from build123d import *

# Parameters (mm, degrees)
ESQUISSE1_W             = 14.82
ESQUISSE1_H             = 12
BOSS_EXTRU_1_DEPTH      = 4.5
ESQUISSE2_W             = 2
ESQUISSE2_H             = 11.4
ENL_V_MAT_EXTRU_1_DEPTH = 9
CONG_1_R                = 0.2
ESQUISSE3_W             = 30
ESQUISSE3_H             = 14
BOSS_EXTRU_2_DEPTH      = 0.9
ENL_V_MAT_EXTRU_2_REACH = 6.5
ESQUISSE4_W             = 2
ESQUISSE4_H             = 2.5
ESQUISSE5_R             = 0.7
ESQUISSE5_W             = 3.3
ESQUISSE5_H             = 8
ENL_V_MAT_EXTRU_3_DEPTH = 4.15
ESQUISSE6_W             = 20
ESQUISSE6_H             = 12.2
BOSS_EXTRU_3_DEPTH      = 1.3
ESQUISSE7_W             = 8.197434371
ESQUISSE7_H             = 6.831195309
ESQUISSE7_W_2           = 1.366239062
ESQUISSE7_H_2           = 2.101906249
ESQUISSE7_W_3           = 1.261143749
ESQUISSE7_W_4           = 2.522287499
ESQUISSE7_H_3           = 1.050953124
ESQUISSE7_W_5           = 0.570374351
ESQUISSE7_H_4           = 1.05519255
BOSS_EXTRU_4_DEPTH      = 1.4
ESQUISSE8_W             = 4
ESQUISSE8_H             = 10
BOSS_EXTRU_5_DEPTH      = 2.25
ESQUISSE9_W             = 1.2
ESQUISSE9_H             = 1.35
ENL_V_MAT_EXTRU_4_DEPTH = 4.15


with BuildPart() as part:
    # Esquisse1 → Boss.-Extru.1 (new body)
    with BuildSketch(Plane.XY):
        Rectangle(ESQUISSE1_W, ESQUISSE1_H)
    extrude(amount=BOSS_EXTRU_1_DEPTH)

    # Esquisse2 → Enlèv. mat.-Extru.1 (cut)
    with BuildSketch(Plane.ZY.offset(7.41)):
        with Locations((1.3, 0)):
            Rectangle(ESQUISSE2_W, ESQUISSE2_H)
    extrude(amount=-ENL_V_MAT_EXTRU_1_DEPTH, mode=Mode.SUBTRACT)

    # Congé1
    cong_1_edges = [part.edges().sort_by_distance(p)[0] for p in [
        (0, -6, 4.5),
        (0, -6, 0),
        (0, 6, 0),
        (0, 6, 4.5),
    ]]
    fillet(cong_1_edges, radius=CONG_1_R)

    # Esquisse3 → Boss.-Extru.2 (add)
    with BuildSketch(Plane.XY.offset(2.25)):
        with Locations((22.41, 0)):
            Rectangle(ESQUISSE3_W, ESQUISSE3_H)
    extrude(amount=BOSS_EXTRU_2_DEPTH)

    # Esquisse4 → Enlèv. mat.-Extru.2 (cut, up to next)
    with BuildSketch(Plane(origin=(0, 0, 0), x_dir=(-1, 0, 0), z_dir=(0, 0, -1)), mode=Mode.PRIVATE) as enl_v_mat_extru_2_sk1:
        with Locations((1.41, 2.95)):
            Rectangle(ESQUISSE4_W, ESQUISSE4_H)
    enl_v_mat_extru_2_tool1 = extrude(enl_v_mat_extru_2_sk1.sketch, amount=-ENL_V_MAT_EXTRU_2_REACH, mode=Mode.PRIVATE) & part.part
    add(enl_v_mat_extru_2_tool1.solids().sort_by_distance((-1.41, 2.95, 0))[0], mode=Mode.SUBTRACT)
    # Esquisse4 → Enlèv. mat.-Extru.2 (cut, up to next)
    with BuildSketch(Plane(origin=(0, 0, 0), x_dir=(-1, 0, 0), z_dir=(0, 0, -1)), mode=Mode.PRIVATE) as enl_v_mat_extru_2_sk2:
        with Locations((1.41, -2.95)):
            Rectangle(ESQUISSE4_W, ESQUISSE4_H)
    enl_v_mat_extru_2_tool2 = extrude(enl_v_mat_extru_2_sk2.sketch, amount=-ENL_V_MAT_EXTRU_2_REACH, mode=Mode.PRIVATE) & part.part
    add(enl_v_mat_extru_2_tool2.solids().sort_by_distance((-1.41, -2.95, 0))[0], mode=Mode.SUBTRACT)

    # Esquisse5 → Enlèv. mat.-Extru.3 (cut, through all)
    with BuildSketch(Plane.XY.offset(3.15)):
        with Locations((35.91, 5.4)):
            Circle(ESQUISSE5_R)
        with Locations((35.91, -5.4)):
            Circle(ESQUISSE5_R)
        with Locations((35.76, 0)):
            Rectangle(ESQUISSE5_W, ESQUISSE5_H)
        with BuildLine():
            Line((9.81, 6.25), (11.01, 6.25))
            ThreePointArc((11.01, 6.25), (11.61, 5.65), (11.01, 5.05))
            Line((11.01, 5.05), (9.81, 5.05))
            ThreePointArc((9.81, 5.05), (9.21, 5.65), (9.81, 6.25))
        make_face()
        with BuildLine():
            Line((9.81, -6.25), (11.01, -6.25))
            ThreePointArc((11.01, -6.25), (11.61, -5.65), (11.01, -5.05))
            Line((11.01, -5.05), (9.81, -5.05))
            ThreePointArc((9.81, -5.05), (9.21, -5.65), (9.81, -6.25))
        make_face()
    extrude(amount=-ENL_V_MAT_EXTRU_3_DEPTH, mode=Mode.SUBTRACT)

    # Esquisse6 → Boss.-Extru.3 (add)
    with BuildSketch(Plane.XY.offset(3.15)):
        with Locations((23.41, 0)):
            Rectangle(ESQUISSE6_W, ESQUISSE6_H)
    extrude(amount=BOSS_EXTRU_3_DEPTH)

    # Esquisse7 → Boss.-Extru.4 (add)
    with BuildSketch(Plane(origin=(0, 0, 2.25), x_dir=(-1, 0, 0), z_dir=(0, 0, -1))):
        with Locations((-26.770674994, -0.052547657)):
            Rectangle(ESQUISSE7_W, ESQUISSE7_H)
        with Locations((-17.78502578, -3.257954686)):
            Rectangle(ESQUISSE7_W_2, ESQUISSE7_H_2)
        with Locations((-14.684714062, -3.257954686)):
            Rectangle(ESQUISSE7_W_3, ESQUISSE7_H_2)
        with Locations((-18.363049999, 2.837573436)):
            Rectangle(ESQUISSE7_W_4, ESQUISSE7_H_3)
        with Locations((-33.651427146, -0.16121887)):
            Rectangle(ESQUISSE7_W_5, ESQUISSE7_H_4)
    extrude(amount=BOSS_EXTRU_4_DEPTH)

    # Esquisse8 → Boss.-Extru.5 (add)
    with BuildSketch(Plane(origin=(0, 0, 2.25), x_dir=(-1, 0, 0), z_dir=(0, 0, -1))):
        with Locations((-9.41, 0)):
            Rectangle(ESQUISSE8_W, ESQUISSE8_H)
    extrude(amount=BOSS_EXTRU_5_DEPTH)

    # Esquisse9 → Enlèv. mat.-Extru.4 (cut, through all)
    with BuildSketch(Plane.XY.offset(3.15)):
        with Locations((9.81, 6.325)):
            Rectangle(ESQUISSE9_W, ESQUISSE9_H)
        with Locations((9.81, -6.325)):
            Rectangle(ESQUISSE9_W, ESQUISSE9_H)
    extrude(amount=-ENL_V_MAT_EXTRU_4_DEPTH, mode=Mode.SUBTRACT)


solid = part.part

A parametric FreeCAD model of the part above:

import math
import FreeCAD as App
import Part
import Sketcher
Q = App.Units.Quantity


def edges_at(feature, points):
    """Names of the edges that pass closest to the given points."""
    edges = feature.Shape.Edges
    near = lambda p: min(range(len(edges)), key=lambda i: edges[i].distToShape(Part.Vertex(*p))[0])
    return sorted({f"Edge{near(p) + 1}" for p in points})


def add_polygon(sketch, points):
    """Adds a closed chain of lines whose ends are joined by coincident constraints."""
    first, n = sketch.GeometryCount, len(points)
    for a, b in zip(points, points[1:] + points[:1]):
        sketch.addGeometry(Part.LineSegment(App.Vector(*a, 0), App.Vector(*b, 0)), False)
    for i in range(n):
        sketch.addConstraint(Sketcher.Constraint("Coincident", first + i, 2, first + (i + 1) % n, 1))

doc = App.newDocument("Part")
body = doc.addObject("PartDesign::Body", "Body")

# Sketch on XY plane
sketch1 = body.newObject("Sketcher::SketchObject", "Sketch")
sketch1.AttachmentSupport = (doc.getObject("XY_Plane"), [""])
sketch1.MapMode = "FlatFace"
add_polygon(sketch1, [(-7, 6), (-7, -6), (7, -6), (7, 6)])  # lines 0-3
sketch1.addConstraint(Sketcher.Constraint("Vertical", 0))
sketch1.addConstraint(Sketcher.Constraint("Horizontal", 1))
sketch1.addConstraint(Sketcher.Constraint("Vertical", 2))
sketch1.addConstraint(Sketcher.Constraint("Horizontal", 3))
sketch1.addConstraint(Sketcher.Constraint("Symmetric", 0, 2, 2, 2, -1, 1))
sketch1.addConstraint(Sketcher.Constraint("DistanceY", 0, 2, 0, 1, Q("12 mm")))
sketch1.addConstraint(Sketcher.Constraint("DistanceX", 1, 1, 1, 2, Q("14.82 mm")))
pad1 = body.newObject("PartDesign::Pad", "Pad")
pad1.Profile = sketch1
pad1.Length = 4.5

# Sketch on YZ plane
sketch2 = body.newObject("Sketcher::SketchObject", "Sketch001")
sketch2.AttachmentSupport = (doc.getObject("YZ_Plane"), [""])
sketch2.MapMode = "FlatFace"
sketch2.AttachmentOffset = App.Placement(App.Vector(0, 0, -7.41), App.Rotation())
add_polygon(sketch2, [(5.7, 0.3), (-5.7, 0.3), (-5.7, 2.3), (5.7, 2.3)])  # lines 0-3
sketch2.addConstraint(Sketcher.Constraint("Horizontal", 0))
sketch2.addConstraint(Sketcher.Constraint("Vertical", 1))
sketch2.addConstraint(Sketcher.Constraint("Horizontal", 2))
sketch2.addConstraint(Sketcher.Constraint("Vertical", 3))
sketch2.addConstraint(Sketcher.Constraint("DistanceY", 1, 1, 1, 2, Q("2 mm")))
sketch2.addConstraint(Sketcher.Constraint("DistanceX", 0, 2, 0, 1, Q("11.4 mm")))
sketch2.addConstraint(Sketcher.Constraint("DistanceX", 0, 2, -1, 1, Q("5.7 mm")))
sketch2.addConstraint(Sketcher.Constraint("DistanceY", -1, 1, 0, 2, Q("0.3 mm")))
pocket1 = body.newObject("PartDesign::Pocket", "Pocket")
pocket1.Profile = sketch2
pocket1.Length = 9
pocket1.Reversed = True
doc.recompute()

fillet = body.newObject("PartDesign::Fillet", "Fillet")
fillet.Base = (pocket1, edges_at(pocket1, [
    (0, -6, 4.5),
    (0, -6, 0),
    (0, 6, 0),
    (0, 6, 4.5),
]))
fillet.Radius = 0.2

# Sketch on XY plane
sketch3 = body.newObject("Sketcher::SketchObject", "Sketch002")
sketch3.AttachmentSupport = (doc.getObject("XY_Plane"), [""])
sketch3.MapMode = "FlatFace"
sketch3.AttachmentOffset = App.Placement(App.Vector(0, 0, 2.25), App.Rotation())
add_polygon(sketch3, [(7, 7), (7, -7), (37, -7), (37, 7)])  # lines 0-3
sketch3.addConstraint(Sketcher.Constraint("Vertical", 0))
sketch3.addConstraint(Sketcher.Constraint("Horizontal", 1))
sketch3.addConstraint(Sketcher.Constraint("Vertical", 2))
sketch3.addConstraint(Sketcher.Constraint("Horizontal", 3))
sketch3.addConstraint(Sketcher.Constraint("DistanceX", 1, 1, 1, 2, Q("30 mm")))
sketch3.addConstraint(Sketcher.Constraint("DistanceY", 0, 2, 0, 1, Q("14 mm")))
sketch3.addConstraint(Sketcher.Constraint("DistanceY", 0, 2, -1, 1, Q("7 mm")))
sketch3.addConstraint(Sketcher.Constraint("DistanceX", -1, 1, 0, 2, Q("7.41 mm")))
pad2 = body.newObject("PartDesign::Pad", "Pad001")
pad2.Profile = sketch3
pad2.Length = 0.9

# Sketch on XY plane
sketch4 = body.newObject("Sketcher::SketchObject", "Sketch003")
sketch4.AttachmentSupport = (doc.getObject("XY_Plane"), [""])
sketch4.MapMode = "FlatFace"
add_polygon(sketch4, [(-0.4, 4.2), (-0.4, 1.7), (-2.4, 1.7), (-2.4, 4.2)])  # lines 0-3
sketch4.addConstraint(Sketcher.Constraint("Vertical", 0))
sketch4.addConstraint(Sketcher.Constraint("Horizontal", 1))
sketch4.addConstraint(Sketcher.Constraint("Vertical", 2))
sketch4.addConstraint(Sketcher.Constraint("Horizontal", 3))
sketch4.addConstraint(Sketcher.Constraint("DistanceX", 1, 2, 1, 1, Q("2 mm")))
sketch4.addConstraint(Sketcher.Constraint("DistanceY", 0, 2, 0, 1, Q("2.5 mm")))
sketch4.addConstraint(Sketcher.Constraint("DistanceY", -1, 1, 0, 2, Q("1.7 mm")))
sketch4.addConstraint(Sketcher.Constraint("DistanceX", 0, 2, -1, 1, Q("0.41 mm")))
pocket2 = body.newObject("PartDesign::Pocket", "Pocket001")
pocket2.Profile = sketch4
pocket2.Type = "UpToFirst"
pocket2.Reversed = True

# Sketch on XY plane
sketch5 = body.newObject("Sketcher::SketchObject", "Sketch004")
sketch5.AttachmentSupport = (doc.getObject("XY_Plane"), [""])
sketch5.MapMode = "FlatFace"
add_polygon(sketch5, [(-0.4, -1.7), (-0.4, -4.2), (-2.4, -4.2), (-2.4, -1.7)])  # lines 0-3
sketch5.addConstraint(Sketcher.Constraint("Vertical", 0))
sketch5.addConstraint(Sketcher.Constraint("Horizontal", 1))
sketch5.addConstraint(Sketcher.Constraint("Vertical", 2))
sketch5.addConstraint(Sketcher.Constraint("Horizontal", 3))
sketch5.addConstraint(Sketcher.Constraint("DistanceX", 1, 2, 1, 1, Q("2 mm")))
sketch5.addConstraint(Sketcher.Constraint("DistanceY", 0, 2, 0, 1, Q("2.5 mm")))
sketch5.addConstraint(Sketcher.Constraint("DistanceY", 0, 2, -1, 1, Q("4.2 mm")))
sketch5.addConstraint(Sketcher.Constraint("DistanceX", 0, 2, -1, 1, Q("0.41 mm")))
pocket3 = body.newObject("PartDesign::Pocket", "Pocket002")
pocket3.Profile = sketch5
pocket3.Type = "UpToFirst"
pocket3.Reversed = True

# Sketch on XY plane
sketch6 = body.newObject("Sketcher::SketchObject", "Sketch005")
sketch6.AttachmentSupport = (doc.getObject("XY_Plane"), [""])
sketch6.MapMode = "FlatFace"
sketch6.AttachmentOffset = App.Placement(App.Vector(0, 0, 3.15), App.Rotation())
sketch6.addGeometry(Part.Circle(App.Vector(35.9, 5.4, 0), App.Vector(0, 0, 1), 0.7), False)  # 0
sketch6.addGeometry(Part.Circle(App.Vector(35.9, -5.4, 0), App.Vector(0, 0, 1), 0.7), False)  # 1
add_polygon(sketch6, [(34.1, 4), (34.1, -4), (37.4, -4), (37.4, 4)])  # lines 2-5
sketch6.addGeometry(Part.LineSegment(App.Vector(11, 6.2, 0), App.Vector(9.8, 6.2, 0)), False)  # 6
sketch6.addGeometry(Part.ArcOfCircle(Part.Circle(App.Vector(9.8, 5.7, 0), App.Vector(0, 0, 1), 0.6), math.radians(90), math.radians(270)), False)  # 7
sketch6.addGeometry(Part.LineSegment(App.Vector(9.8, 5, 0), App.Vector(11, 5, 0)), False)  # 8
sketch6.addGeometry(Part.ArcOfCircle(Part.Circle(App.Vector(11, 5.7, 0), App.Vector(0, 0, 1), 0.6), math.radians(-90), math.radians(90)), False)  # 9
sketch6.addGeometry(Part.LineSegment(App.Vector(9.8, -6.2, 0), App.Vector(11, -6.2, 0)), False)  # 10
sketch6.addGeometry(Part.ArcOfCircle(Part.Circle(App.Vector(11, -5.7, 0), App.Vector(0, 0, 1), 0.6), math.radians(-90), math.radians(90)), False)  # 11
sketch6.addGeometry(Part.LineSegment(App.Vector(11, -5, 0), App.Vector(9.8, -5, 0)), False)  # 12
sketch6.addGeometry(Part.ArcOfCircle(Part.Circle(App.Vector(9.8, -5.7, 0), App.Vector(0, 0, 1), 0.6), math.radians(90), math.radians(270)), False)  # 13
sketch6.addConstraint(Sketcher.Constraint("Tangent", 6, 2, 7, 1))
sketch6.addConstraint(Sketcher.Constraint("Tangent", 7, 2, 8, 1))
sketch6.addConstraint(Sketcher.Constraint("Tangent", 8, 2, 9, 1))
sketch6.addConstraint(Sketcher.Constraint("Tangent", 9, 2, 6, 1))
sketch6.addConstraint(Sketcher.Constraint("Tangent", 10, 2, 11, 1))
sketch6.addConstraint(Sketcher.Constraint("Tangent", 11, 2, 12, 1))
sketch6.addConstraint(Sketcher.Constraint("Tangent", 12, 2, 13, 1))
sketch6.addConstraint(Sketcher.Constraint("Tangent", 13, 2, 10, 1))
sketch6.addConstraint(Sketcher.Constraint("Vertical", 2))
sketch6.addConstraint(Sketcher.Constraint("Horizontal", 3))
sketch6.addConstraint(Sketcher.Constraint("Vertical", 4))
sketch6.addConstraint(Sketcher.Constraint("Horizontal", 5))
sketch6.addConstraint(Sketcher.Constraint("Horizontal", 6))
sketch6.addConstraint(Sketcher.Constraint("Horizontal", 8))
sketch6.addConstraint(Sketcher.Constraint("Horizontal", 10))
sketch6.addConstraint(Sketcher.Constraint("Horizontal", 12))
sketch6.addConstraint(Sketcher.Constraint("Equal", 0, 1))
sketch6.addConstraint(Sketcher.Constraint("Equal", 9, 11))
sketch6.addConstraint(Sketcher.Constraint("Symmetric", 0, 3, 1, 3, -1))
sketch6.addConstraint(Sketcher.Constraint("Symmetric", 9, 3, 11, 3, -1))
sketch6.addConstraint(Sketcher.Constraint("Vertical", 7, 3, 13, 3))
sketch6.addConstraint(Sketcher.Constraint("Diameter", 0, Q("1.4 mm")))
sketch6.addConstraint(Sketcher.Constraint("Radius", 7, Q("0.6 mm")))
sketch6.addConstraint(Sketcher.Constraint("DistanceY", 2, 2, 2, 1, Q("8 mm")))
sketch6.addConstraint(Sketcher.Constraint("DistanceX", 3, 1, 3, 2, Q("3.3 mm")))
sketch6.addConstraint(Sketcher.Constraint("DistanceX", 6, 2, 6, 1, Q("1.2 mm")))
sketch6.addConstraint(Sketcher.Constraint("DistanceY", 2, 2, -1, 1, Q("4 mm")))
sketch6.addConstraint(Sketcher.Constraint("DistanceY", -1, 1, 0, 3, Q("5.4 mm")))
sketch6.addConstraint(Sketcher.Constraint("DistanceX", 7, 3, 0, 3, Q("26.1 mm")))
sketch6.addConstraint(Sketcher.Constraint("DistanceY", 11, 3, 9, 3, Q("11.3 mm")))
sketch6.addConstraint(Sketcher.Constraint("DistanceX", 2, 2, 1, 3, Q("1.8 mm")))
sketch6.addConstraint(Sketcher.Constraint("DistanceX", -1, 1, 0, 3, Q("35.91 mm")))
pocket4 = body.newObject("PartDesign::Pocket", "Pocket003")
pocket4.Profile = sketch6
pocket4.Type = "ThroughAll"

# Sketch on XY plane
sketch7 = body.newObject("Sketcher::SketchObject", "Sketch006")
sketch7.AttachmentSupport = (doc.getObject("XY_Plane"), [""])
sketch7.MapMode = "FlatFace"
sketch7.AttachmentOffset = App.Placement(App.Vector(0, 0, 3.15), App.Rotation())
add_polygon(sketch7, [(13, 6), (13, -6), (33, -6), (33, 6)])  # lines 0-3
sketch7.addConstraint(Sketcher.Constraint("Vertical", 0))
sketch7.addConstraint(Sketcher.Constraint("Horizontal", 1))
sketch7.addConstraint(Sketcher.Constraint("Vertical", 2))
sketch7.addConstraint(Sketcher.Constraint("Horizontal", 3))
sketch7.addConstraint(Sketcher.Constraint("DistanceX", 1, 1, 1, 2, Q("20 mm")))
sketch7.addConstraint(Sketcher.Constraint("DistanceY", 0, 2, 0, 1, Q("12.2 mm")))
sketch7.addConstraint(Sketcher.Constraint("DistanceY", 0, 2, -1, 1, Q("6.1 mm")))
sketch7.addConstraint(Sketcher.Constraint("DistanceX", -1, 1, 0, 2, Q("13.41 mm")))
pad3 = body.newObject("PartDesign::Pad", "Pad002")
pad3.Profile = sketch7
pad3.Length = 1.3

# Sketch on XY plane
sketch8 = body.newObject("Sketcher::SketchObject", "Sketch007")
sketch8.AttachmentSupport = (doc.getObject("XY_Plane"), [""])
sketch8.MapMode = "FlatFace"
sketch8.AttachmentOffset = App.Placement(App.Vector(0, 0, 2.25), App.Rotation())
add_polygon(sketch8, [(30.9, 3.4), (30.9, -3.5), (22.7, -3.5), (22.7, 3.4)])  # lines 0-3
add_polygon(sketch8, [(18.5, -2.2), (18.5, -4.3), (17.1, -4.3), (17.1, -2.2)])  # lines 4-7
add_polygon(sketch8, [(15.3, -2.2), (15.3, -4.3), (14.1, -4.3), (14.1, -2.2)])  # lines 8-11
add_polygon(sketch8, [(19.6, 3.4), (19.6, 2.3), (17.1, 2.3), (17.1, 3.4)])  # lines 12-15
add_polygon(sketch8, [(33.9, 0.4), (33.9, -0.7), (33.4, -0.7), (33.4, 0.4)])  # lines 16-19
sketch8.addConstraint(Sketcher.Constraint("Vertical", 0))
sketch8.addConstraint(Sketcher.Constraint("Horizontal", 1))
sketch8.addConstraint(Sketcher.Constraint("Vertical", 2))
sketch8.addConstraint(Sketcher.Constraint("Horizontal", 3))
sketch8.addConstraint(Sketcher.Constraint("Vertical", 4))
sketch8.addConstraint(Sketcher.Constraint("Horizontal", 5))
sketch8.addConstraint(Sketcher.Constraint("Vertical", 6))
sketch8.addConstraint(Sketcher.Constraint("Horizontal", 7))
sketch8.addConstraint(Sketcher.Constraint("Vertical", 8))
sketch8.addConstraint(Sketcher.Constraint("Horizontal", 9))
sketch8.addConstraint(Sketcher.Constraint("Vertical", 10))
sketch8.addConstraint(Sketcher.Constraint("Horizontal", 11))
sketch8.addConstraint(Sketcher.Constraint("Vertical", 12))
sketch8.addConstraint(Sketcher.Constraint("Horizontal", 13))
sketch8.addConstraint(Sketcher.Constraint("Vertical", 14))
sketch8.addConstraint(Sketcher.Constraint("Horizontal", 15))
sketch8.addConstraint(Sketcher.Constraint("Vertical", 16))
sketch8.addConstraint(Sketcher.Constraint("Horizontal", 17))
sketch8.addConstraint(Sketcher.Constraint("Vertical", 18))
sketch8.addConstraint(Sketcher.Constraint("Horizontal", 19))
sketch8.addConstraint(Sketcher.Constraint("Horizontal", 5, 2, 8, 2))
sketch8.addConstraint(Sketcher.Constraint("Horizontal", 7, 2, 10, 2))
sketch8.addConstraint(Sketcher.Constraint("Horizontal", 3, 2, 14, 2))
sketch8.addConstraint(Sketcher.Constraint("Vertical", 6, 2, 13, 2))
sketch8.addConstraint(Sketcher.Constraint("DistanceY", 6, 2, -1, 1, Q("2.207002 mm")))
sketch8.addConstraint(Sketcher.Constraint("DistanceX", 5, 2, 5, 1, Q("1.366239 mm")))
sketch8.addConstraint(Sketcher.Constraint("DistanceY", 7, 2, 12, 2, Q("4.519098 mm")))
sketch8.addConstraint(Sketcher.Constraint("DistanceX", 1, 2, 1, 1, Q("8.197434 mm")))
sketch8.addConstraint(Sketcher.Constraint("DistanceX", 9, 2, 9, 1, Q("1.261144 mm")))
sketch8.addConstraint(Sketcher.Constraint("DistanceX", 13, 2, 13, 1, Q("2.522287 mm")))
sketch8.addConstraint(Sketcher.Constraint("DistanceX", 17, 2, 17, 1, Q("0.570374 mm")))
sketch8.addConstraint(Sketcher.Constraint("DistanceY", 0, 2, 0, 1, Q("6.831195 mm")))
sketch8.addConstraint(Sketcher.Constraint("DistanceY", 4, 2, 4, 1, Q("2.101906 mm")))
sketch8.addConstraint(Sketcher.Constraint("DistanceY", 12, 2, 12, 1, Q("1.050953 mm")))
sketch8.addConstraint(Sketcher.Constraint("DistanceY", 16, 2, 16, 1, Q("1.055193 mm")))
sketch8.addConstraint(Sketcher.Constraint("DistanceX", -1, 1, 17, 2, Q("33.36624 mm")))
sketch8.addConstraint(Sketcher.Constraint("DistanceX", 5, 2, 1, 2, Q("5.570052 mm")))
sketch8.addConstraint(Sketcher.Constraint("DistanceX", 8, 2, 5, 2, Q("1.78662 mm")))
sketch8.addConstraint(Sketcher.Constraint("DistanceY", 0, 2, 16, 2, Q("2.77933 mm")))
sketch8.addConstraint(Sketcher.Constraint("DistanceX", 12, 2, 16, 2, Q("14.312421 mm")))
pad4 = body.newObject("PartDesign::Pad", "Pad003")
pad4.Profile = sketch8
pad4.Length = 1.4
pad4.Reversed = True

# Sketch on XY plane
sketch9 = body.newObject("Sketcher::SketchObject", "Sketch008")
sketch9.AttachmentSupport = (doc.getObject("XY_Plane"), [""])
sketch9.MapMode = "FlatFace"
sketch9.AttachmentOffset = App.Placement(App.Vector(0, 0, 2.25), App.Rotation())
add_polygon(sketch9, [(11.4, 5), (11.4, -5), (7.4, -5), (7.4, 5)])  # lines 0-3
sketch9.addConstraint(Sketcher.Constraint("Vertical", 0))
sketch9.addConstraint(Sketcher.Constraint("Horizontal", 1))
sketch9.addConstraint(Sketcher.Constraint("Vertical", 2))
sketch9.addConstraint(Sketcher.Constraint("Horizontal", 3))
sketch9.addConstraint(Sketcher.Constraint("DistanceX", 1, 2, 1, 1, Q("4 mm")))
sketch9.addConstraint(Sketcher.Constraint("DistanceY", 0, 2, 0, 1, Q("10 mm")))
sketch9.addConstraint(Sketcher.Constraint("DistanceY", 0, 2, -1, 1, Q("5 mm")))
sketch9.addConstraint(Sketcher.Constraint("DistanceX", -1, 1, 0, 2, Q("11.41 mm")))
pad5 = body.newObject("PartDesign::Pad", "Pad004")
pad5.Profile = sketch9
pad5.Length = 2.25
pad5.Reversed = True

# Sketch on XY plane
sketch10 = body.newObject("Sketcher::SketchObject", "Sketch009")
sketch10.AttachmentSupport = (doc.getObject("XY_Plane"), [""])
sketch10.MapMode = "FlatFace"
sketch10.AttachmentOffset = App.Placement(App.Vector(0, 0, 3.15), App.Rotation())
add_polygon(sketch10, [(9.2, 7), (9.2, 5.7), (10.4, 5.7), (10.4, 7)])  # lines 0-3
add_polygon(sketch10, [(9.2, -5.7), (9.2, -7), (10.4, -7), (10.4, -5.7)])  # lines 4-7
sketch10.addConstraint(Sketcher.Constraint("Vertical", 0))
sketch10.addConstraint(Sketcher.Constraint("Horizontal", 1))
sketch10.addConstraint(Sketcher.Constraint("Vertical", 2))
sketch10.addConstraint(Sketcher.Constraint("Horizontal", 3))
sketch10.addConstraint(Sketcher.Constraint("Vertical", 4))
sketch10.addConstraint(Sketcher.Constraint("Horizontal", 5))
sketch10.addConstraint(Sketcher.Constraint("Vertical", 6))
sketch10.addConstraint(Sketcher.Constraint("Horizontal", 7))
sketch10.addConstraint(Sketcher.Constraint("Symmetric", 3, 2, 4, 2, -1))
sketch10.addConstraint(Sketcher.Constraint("Symmetric", 1, 2, 6, 2, -1))
sketch10.addConstraint(Sketcher.Constraint("DistanceX", 1, 1, 1, 2, Q("1.2 mm")))
sketch10.addConstraint(Sketcher.Constraint("DistanceY", -1, 1, 2, 2, Q("7 mm")))
sketch10.addConstraint(Sketcher.Constraint("DistanceY", 0, 2, 0, 1, Q("1.35 mm")))
sketch10.addConstraint(Sketcher.Constraint("DistanceX", -1, 1, 0, 2, Q("9.21 mm")))
pocket5 = body.newObject("PartDesign::Pocket", "Pocket004")
pocket5.Profile = sketch10
pocket5.Type = "ThroughAll"

doc.recompute()
